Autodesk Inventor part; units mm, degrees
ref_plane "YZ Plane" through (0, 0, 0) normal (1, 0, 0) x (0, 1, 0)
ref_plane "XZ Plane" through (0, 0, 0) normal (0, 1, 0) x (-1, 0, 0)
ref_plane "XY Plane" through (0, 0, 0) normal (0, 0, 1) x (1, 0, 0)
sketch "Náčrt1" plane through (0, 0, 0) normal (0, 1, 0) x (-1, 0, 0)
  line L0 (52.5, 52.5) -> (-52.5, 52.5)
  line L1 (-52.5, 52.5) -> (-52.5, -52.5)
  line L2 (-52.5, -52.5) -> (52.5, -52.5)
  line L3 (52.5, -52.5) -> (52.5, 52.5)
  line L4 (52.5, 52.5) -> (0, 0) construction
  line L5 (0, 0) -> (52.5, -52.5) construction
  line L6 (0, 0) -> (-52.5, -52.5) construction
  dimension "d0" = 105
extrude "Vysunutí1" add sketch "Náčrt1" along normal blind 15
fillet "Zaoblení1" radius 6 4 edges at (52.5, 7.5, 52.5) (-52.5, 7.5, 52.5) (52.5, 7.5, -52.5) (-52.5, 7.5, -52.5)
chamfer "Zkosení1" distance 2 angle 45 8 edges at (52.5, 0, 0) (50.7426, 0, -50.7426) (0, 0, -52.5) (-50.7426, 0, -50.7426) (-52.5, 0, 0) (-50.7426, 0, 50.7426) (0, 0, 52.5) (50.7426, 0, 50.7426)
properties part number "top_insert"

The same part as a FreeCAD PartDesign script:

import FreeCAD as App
import Part
import Sketcher
Q = App.Units.Quantity


def edges_at(feature, points):
    """Names of the edges that pass closest to the given points."""
    edges = feature.Shape.Edges
    near = lambda p: min(range(len(edges)), key=lambda i: edges[i].distToShape(Part.Vertex(*p))[0])
    return sorted({f"Edge{near(p) + 1}" for p in points})

doc = App.newDocument("Part")
params = doc.addObject("Spreadsheet::Sheet", "Params")
for row, (alias, value) in enumerate([
    ("sketch1_width", "105 mm"),
    ("pad1_length", "15 mm"),
    ("fillet_radius", "6 mm"),
    ("chamfer_size", "2 mm"),
], start=1):
    params.set(f"A{row}", alias)
    params.set(f"B{row}", "=" + value)
    params.setAlias(f"B{row}", alias)

body = doc.addObject("PartDesign::Body", "Body")

# Sketch on XZ plane
sketch1 = body.newObject("Sketcher::SketchObject", "Sketch")
sketch1.AttachmentSupport = (doc.getObject("XZ_Plane"), [""])
sketch1.MapMode = "FlatFace"
sketch1.addGeometry(Part.LineSegment(App.Vector(-52, -52, 0), App.Vector(-52, 52, 0)), False)
sketch1.addGeometry(Part.LineSegment(App.Vector(-52, 52, 0), App.Vector(52, 52, 0)), False)
sketch1.addGeometry(Part.LineSegment(App.Vector(52, 52, 0), App.Vector(52, -52, 0)), False)
sketch1.addGeometry(Part.LineSegment(App.Vector(52, -52, 0), App.Vector(-52, -52, 0)), False)
sketch1.addConstraint(Sketcher.Constraint("Coincident", 0, 2, 1, 1))
sketch1.addConstraint(Sketcher.Constraint("Coincident", 1, 2, 2, 1))
sketch1.addConstraint(Sketcher.Constraint("Coincident", 2, 2, 3, 1))
sketch1.addConstraint(Sketcher.Constraint("Coincident", 3, 2, 0, 1))
sketch1.addConstraint(Sketcher.Constraint("Vertical", 0))
sketch1.addConstraint(Sketcher.Constraint("Horizontal", 1))
sketch1.addConstraint(Sketcher.Constraint("Vertical", 2))
sketch1.addConstraint(Sketcher.Constraint("Horizontal", 3))
sketch1.addConstraint(Sketcher.Constraint("Symmetric", 0, 2, 2, 2, -1, 1))
sketch1.addConstraint(Sketcher.Constraint("Equal", 3, 0))
sketch1.addConstraint(Sketcher.Constraint("DistanceX", 1, 1, 1, 2, Q("105 mm")))
sketch1.setExpression("Constraints[10]", "Params.sketch1_width")
pad1 = body.newObject("PartDesign::Pad", "Pad")
pad1.Profile = sketch1
pad1.setExpression("Length", "Params.pad1_length")
pad1.Reversed = True
doc.recompute()

fillet = body.newObject("PartDesign::Fillet", "Fillet")
fillet.Base = (pad1, edges_at(pad1, [
    (52.5, 7.5, 52.5),
    (-52.5, 7.5, 52.5),
    (52.5, 7.5, -52.5),
    (-52.5, 7.5, -52.5),
]))
fillet.setExpression("Radius", "Params.fillet_radius")
doc.recompute()

chamfer = body.newObject("PartDesign::Chamfer", "Chamfer")
chamfer.Base = (fillet, edges_at(fillet, [
    (52.5, 0, 0),
    (50.743, 0, -50.743),
    (0, 0, -52.5),
    (-50.743, 0, -50.743),
    (-52.5, 0, 0),
    (-50.743, 0, 50.743),
    (0, 0, 52.5),
    (50.743, 0, 50.743),
]))
chamfer.setExpression("Size", "Params.chamfer_size")

doc.recompute()
